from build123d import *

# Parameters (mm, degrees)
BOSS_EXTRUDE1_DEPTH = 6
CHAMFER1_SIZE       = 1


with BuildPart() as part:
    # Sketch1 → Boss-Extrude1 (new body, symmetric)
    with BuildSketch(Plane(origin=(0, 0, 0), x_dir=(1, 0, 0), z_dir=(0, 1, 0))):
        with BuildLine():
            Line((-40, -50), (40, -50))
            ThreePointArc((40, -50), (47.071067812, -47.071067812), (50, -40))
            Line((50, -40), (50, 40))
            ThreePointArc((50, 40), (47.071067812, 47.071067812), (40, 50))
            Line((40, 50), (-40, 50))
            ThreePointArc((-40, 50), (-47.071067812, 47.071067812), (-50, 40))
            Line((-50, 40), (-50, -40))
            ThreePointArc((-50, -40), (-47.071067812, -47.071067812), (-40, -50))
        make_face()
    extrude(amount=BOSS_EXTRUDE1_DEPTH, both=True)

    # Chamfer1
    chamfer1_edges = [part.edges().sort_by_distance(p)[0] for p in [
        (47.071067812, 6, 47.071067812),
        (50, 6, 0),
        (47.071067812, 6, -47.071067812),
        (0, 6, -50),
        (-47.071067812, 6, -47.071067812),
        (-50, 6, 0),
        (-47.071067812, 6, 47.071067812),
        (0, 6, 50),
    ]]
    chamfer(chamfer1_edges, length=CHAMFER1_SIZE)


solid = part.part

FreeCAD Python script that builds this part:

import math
import FreeCAD as App
import Part
import Sketcher

V = App.Vector


def edges_at(feature, points):
    """Names of the edges that pass closest to the given points."""
    edges = feature.Shape.Edges
    near = lambda p: min(range(len(edges)), key=lambda i: edges[i].distToShape(Part.Vertex(*p))[0])
    return sorted({f"Edge{near(p) + 1}" for p in points})

doc = App.newDocument("Part")
params = doc.addObject("Spreadsheet::Sheet", "Params")
for row, (alias, value) in enumerate([
    ("sketch1_radius", "10 mm"),
    ("sketch1_width", "80 mm"),
    ("pad1_length", "12 mm"),
    ("chamfer_size", "1 mm"),
], start=1):
    params.set(f"A{row}", alias)
    params.set(f"B{row}", "=" + value)
    params.setAlias(f"B{row}", alias)

body = doc.addObject("PartDesign::Body", "Body")

# Sketch on XZ plane
sketch1 = body.newObject("Sketcher::SketchObject", "Sketch")
sketch1.AttachmentSupport = (doc.getObject("XZ_Plane"), [""])
sketch1.MapMode = "FlatFace"
sketch1.addGeometry(Part.LineSegment(V(-40, 50, 0), V(40, 50, 0)), False)
sketch1.addGeometry(Part.ArcOfCircle(Part.Circle(V(40, 40, 0), V(0, 0, 1), 10), math.radians(0), math.radians(90)), False)
sketch1.addGeometry(Part.LineSegment(V(50, 40, 0), V(50, -40, 0)), False)
sketch1.addGeometry(Part.ArcOfCircle(Part.Circle(V(40, -40, 0), V(0, 0, 1), 10), math.radians(-90), math.radians(0)), False)
sketch1.addGeometry(Part.LineSegment(V(40, -50, 0), V(-40, -50, 0)), False)
sketch1.addGeometry(Part.ArcOfCircle(Part.Circle(V(-40, -40, 0), V(0, 0, 1), 10), math.radians(180), math.radians(270)), False)
sketch1.addGeometry(Part.LineSegment(V(-50, -40, 0), V(-50, 40, 0)), False)
sketch1.addGeometry(Part.ArcOfCircle(Part.Circle(V(-40, 40, 0), V(0, 0, 1), 10), math.radians(90), math.radians(180)), False)
sketch1.addConstraint(Sketcher.Constraint("Tangent", 0, 2, 1, 2))
sketch1.addConstraint(Sketcher.Constraint("Tangent", 1, 1, 2, 1))
sketch1.addConstraint(Sketcher.Constraint("Tangent", 2, 2, 3, 2))
sketch1.addConstraint(Sketcher.Constraint("Tangent", 3, 1, 4, 1))
sketch1.addConstraint(Sketcher.Constraint("Tangent", 4, 2, 5, 2))
sketch1.addConstraint(Sketcher.Constraint("Tangent", 5, 1, 6, 1))
sketch1.addConstraint(Sketcher.Constraint("Tangent", 6, 2, 7, 2))
sketch1.addConstraint(Sketcher.Constraint("Tangent", 7, 1, 0, 1))
sketch1.addConstraint(Sketcher.Constraint("Horizontal", 0))
sketch1.addConstraint(Sketcher.Constraint("Vertical", 2))
sketch1.addConstraint(Sketcher.Constraint("Horizontal", 4))
sketch1.addConstraint(Sketcher.Constraint("Vertical", 6))
sketch1.addConstraint(Sketcher.Constraint("Equal", 1, 3))
sketch1.addConstraint(Sketcher.Constraint("Equal", 3, 5))
sketch1.addConstraint(Sketcher.Constraint("Equal", 5, 7))
sketch1.addConstraint(Sketcher.Constraint("Symmetric", 1, 3, 5, 3, -1, 1))
sketch1.addConstraint(Sketcher.Constraint("Equal", 4, 2))
sketch1.addConstraint(Sketcher.Constraint("Radius", 1, 10.0))
sketch1.addConstraint(Sketcher.Constraint("DistanceX", 0, 1, 0, 2, 80.0))
sketch1.setExpression("Constraints[17]", "Params.sketch1_radius")
sketch1.setExpression("Constraints[18]", "Params.sketch1_width")
pad1 = body.newObject("PartDesign::Pad", "Pad")
pad1.Profile = sketch1
pad1.setExpression("Length", "Params.pad1_length")
pad1.Midplane = True
doc.recompute()

chamfer = body.newObject("PartDesign::Chamfer", "Chamfer")
chamfer.Base = (pad1, edges_at(pad1, [
    (47.071, 6, 47.071),
    (50, 6, 0),
    (47.071, 6, -47.071),
    (0, 6, -50),
    (-47.071, 6, -47.071),
    (-50, 6, 0),
    (-47.071, 6, 47.071),
    (0, 6, 50),
]))
chamfer.setExpression("Size", "Params.chamfer_size")

doc.recompute()
